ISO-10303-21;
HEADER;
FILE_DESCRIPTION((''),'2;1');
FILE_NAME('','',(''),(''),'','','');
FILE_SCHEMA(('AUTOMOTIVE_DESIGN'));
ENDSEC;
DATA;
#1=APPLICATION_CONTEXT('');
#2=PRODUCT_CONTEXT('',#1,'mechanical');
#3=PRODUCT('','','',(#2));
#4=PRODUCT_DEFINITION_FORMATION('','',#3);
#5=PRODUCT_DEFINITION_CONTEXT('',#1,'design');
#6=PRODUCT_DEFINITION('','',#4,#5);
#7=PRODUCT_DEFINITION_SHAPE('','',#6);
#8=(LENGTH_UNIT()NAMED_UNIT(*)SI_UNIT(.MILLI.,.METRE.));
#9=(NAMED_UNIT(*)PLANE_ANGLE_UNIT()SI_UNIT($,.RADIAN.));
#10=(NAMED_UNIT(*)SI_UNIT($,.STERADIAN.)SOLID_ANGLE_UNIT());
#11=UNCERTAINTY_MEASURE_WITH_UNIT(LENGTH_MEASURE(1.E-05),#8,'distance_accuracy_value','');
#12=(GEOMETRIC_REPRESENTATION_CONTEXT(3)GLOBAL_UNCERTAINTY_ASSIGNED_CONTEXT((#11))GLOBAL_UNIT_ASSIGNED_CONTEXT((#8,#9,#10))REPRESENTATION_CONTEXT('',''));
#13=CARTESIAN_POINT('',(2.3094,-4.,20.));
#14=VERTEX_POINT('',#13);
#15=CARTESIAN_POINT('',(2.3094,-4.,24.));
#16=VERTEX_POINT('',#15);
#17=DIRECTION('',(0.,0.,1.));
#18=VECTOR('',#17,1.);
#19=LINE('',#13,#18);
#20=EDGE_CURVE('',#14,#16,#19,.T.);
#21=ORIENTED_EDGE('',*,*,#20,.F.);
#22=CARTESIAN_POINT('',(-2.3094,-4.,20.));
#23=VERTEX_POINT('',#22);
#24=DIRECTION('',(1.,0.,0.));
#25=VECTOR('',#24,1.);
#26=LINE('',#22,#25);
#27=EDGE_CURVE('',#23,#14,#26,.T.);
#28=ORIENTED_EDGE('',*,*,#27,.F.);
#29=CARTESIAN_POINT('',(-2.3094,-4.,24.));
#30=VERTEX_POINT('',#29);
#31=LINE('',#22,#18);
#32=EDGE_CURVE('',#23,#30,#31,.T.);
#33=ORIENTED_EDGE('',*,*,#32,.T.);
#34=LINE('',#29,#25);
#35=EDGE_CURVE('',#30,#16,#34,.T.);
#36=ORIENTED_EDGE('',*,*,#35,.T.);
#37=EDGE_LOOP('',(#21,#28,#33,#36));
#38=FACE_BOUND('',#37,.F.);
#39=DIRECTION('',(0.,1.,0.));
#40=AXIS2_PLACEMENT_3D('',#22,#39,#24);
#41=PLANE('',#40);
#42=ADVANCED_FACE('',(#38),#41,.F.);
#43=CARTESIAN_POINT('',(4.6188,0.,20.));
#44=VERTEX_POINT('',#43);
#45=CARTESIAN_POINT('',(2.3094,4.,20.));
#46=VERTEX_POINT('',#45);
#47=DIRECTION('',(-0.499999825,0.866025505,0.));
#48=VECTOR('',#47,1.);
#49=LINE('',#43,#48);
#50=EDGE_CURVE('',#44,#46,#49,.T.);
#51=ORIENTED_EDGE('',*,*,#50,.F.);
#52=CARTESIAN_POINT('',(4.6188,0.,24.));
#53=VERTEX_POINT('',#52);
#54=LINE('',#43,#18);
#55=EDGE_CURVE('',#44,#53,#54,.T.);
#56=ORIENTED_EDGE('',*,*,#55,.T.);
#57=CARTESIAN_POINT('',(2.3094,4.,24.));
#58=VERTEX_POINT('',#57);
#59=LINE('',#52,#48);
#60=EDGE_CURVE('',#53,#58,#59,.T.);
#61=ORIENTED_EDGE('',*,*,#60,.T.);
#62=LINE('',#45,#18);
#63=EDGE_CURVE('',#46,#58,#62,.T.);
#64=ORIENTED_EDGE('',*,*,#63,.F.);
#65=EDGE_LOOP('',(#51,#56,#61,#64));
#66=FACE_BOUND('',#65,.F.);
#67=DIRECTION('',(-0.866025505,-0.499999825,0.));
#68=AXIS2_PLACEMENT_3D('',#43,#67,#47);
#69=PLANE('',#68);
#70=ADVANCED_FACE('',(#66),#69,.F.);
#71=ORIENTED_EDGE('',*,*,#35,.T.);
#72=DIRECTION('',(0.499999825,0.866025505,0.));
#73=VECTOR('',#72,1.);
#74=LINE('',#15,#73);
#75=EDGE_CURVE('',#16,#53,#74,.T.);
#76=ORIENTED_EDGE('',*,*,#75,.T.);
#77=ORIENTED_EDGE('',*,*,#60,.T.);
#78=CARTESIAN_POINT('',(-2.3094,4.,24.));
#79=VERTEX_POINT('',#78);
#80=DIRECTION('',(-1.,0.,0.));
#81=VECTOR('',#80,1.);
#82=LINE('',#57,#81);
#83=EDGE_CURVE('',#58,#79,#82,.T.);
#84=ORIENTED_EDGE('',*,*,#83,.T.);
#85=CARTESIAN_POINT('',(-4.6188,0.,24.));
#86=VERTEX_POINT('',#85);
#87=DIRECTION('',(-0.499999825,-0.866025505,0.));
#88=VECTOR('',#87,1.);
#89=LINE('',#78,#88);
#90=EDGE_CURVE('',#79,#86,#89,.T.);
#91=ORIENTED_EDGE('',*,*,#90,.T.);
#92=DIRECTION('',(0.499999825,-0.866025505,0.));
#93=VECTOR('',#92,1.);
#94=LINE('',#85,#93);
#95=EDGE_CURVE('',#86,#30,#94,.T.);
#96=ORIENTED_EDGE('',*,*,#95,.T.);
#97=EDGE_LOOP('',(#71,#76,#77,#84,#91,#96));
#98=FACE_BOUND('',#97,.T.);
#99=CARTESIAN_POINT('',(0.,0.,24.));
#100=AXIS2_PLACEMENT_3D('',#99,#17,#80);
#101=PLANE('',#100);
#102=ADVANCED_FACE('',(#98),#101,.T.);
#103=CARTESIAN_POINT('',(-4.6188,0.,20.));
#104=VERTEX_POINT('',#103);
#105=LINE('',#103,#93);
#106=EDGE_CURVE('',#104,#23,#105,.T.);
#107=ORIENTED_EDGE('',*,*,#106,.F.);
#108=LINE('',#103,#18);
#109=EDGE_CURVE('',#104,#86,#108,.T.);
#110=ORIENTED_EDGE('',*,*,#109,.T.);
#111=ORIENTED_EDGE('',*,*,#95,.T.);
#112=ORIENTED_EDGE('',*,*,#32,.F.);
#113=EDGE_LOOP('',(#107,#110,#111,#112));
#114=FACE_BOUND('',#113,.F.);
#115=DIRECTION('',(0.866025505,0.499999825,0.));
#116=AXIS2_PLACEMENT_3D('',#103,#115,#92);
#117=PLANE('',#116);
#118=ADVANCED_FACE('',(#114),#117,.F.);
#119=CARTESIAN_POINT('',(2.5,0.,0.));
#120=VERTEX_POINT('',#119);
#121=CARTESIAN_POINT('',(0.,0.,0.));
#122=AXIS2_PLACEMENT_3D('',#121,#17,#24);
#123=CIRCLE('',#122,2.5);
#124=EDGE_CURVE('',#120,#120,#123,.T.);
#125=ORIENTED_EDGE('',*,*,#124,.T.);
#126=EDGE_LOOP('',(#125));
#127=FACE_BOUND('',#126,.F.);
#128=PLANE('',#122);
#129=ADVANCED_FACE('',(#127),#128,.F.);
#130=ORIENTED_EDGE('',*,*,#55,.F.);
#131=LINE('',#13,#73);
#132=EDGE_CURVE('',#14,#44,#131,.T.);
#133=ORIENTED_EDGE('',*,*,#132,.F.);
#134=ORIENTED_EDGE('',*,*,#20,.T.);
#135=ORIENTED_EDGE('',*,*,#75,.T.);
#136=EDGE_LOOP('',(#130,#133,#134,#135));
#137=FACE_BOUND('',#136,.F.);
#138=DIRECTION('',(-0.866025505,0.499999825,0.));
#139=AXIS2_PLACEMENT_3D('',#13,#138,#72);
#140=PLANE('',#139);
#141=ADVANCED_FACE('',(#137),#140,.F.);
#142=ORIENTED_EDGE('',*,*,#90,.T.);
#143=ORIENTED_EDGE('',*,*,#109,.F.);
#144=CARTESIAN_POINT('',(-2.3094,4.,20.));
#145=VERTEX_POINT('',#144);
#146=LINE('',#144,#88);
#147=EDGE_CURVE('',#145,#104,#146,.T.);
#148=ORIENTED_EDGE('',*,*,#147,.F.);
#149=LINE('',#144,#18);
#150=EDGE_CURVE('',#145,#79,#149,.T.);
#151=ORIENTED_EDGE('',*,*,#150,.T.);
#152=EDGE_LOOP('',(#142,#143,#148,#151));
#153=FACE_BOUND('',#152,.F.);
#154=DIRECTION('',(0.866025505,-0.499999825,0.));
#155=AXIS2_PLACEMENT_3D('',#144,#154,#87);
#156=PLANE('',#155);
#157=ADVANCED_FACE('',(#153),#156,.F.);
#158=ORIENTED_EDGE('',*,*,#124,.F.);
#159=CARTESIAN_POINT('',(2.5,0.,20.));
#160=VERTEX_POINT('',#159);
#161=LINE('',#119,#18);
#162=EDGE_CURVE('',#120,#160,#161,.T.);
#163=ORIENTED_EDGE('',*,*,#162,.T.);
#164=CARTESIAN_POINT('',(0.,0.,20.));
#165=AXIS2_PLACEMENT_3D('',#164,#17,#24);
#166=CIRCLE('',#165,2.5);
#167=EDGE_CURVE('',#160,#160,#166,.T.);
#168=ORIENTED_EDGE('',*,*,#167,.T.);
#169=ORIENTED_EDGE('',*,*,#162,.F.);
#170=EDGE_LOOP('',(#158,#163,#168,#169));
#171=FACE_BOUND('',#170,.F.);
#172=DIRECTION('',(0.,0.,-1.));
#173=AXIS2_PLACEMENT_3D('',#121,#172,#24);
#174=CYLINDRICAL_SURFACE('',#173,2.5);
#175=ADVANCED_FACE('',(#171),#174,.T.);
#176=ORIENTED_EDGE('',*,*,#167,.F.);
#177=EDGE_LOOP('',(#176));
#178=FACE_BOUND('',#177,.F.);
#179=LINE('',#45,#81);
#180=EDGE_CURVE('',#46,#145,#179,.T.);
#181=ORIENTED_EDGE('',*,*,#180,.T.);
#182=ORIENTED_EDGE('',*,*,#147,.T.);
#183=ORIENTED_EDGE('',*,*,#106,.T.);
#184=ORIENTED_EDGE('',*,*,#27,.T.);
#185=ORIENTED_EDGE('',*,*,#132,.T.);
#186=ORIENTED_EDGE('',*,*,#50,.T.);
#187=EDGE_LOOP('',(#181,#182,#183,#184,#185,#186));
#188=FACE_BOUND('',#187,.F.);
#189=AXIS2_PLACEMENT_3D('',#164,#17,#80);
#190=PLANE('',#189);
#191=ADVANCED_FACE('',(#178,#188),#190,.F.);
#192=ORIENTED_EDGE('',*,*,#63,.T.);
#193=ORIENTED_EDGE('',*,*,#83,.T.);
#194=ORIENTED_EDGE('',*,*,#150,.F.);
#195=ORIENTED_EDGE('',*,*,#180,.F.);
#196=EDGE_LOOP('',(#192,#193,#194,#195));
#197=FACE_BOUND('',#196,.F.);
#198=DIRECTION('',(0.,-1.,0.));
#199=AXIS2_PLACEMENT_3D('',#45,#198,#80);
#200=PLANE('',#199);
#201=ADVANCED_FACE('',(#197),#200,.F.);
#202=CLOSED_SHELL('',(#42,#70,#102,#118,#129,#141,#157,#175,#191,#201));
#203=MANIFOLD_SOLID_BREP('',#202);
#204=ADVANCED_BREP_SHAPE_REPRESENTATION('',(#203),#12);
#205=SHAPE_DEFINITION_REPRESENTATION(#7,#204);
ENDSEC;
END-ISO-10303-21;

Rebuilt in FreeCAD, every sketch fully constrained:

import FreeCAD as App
import Part
import Sketcher
from FreeCAD import Vector
Q = App.Units.Quantity

doc = App.newDocument("Part")
params = doc.addObject("Spreadsheet::Sheet", "Params")
for row, (alias, value) in enumerate([
    ("sketch1_diameter", "5 mm"),
    ("pad1_length", "20 mm"),
    ("pad2_length", "4 mm"),
], start=1):
    params.set(f"A{row}", alias)
    params.set(f"B{row}", "=" + value)
    params.setAlias(f"B{row}", alias)

body = doc.addObject("PartDesign::Body", "Body")

# Sketch on XY plane
sketch1 = body.newObject("Sketcher::SketchObject", "Sketch")
sketch1.AttachmentSupport = (doc.getObject("XY_Plane"), [""])
sketch1.MapMode = "FlatFace"
sketch1.addGeometry(Part.Circle(Vector(0, 0, 0), Vector(0, 0, 1), 2.5), False)
sketch1.addConstraint(Sketcher.Constraint("Coincident", 0, 3, -1, 1))
sketch1.addConstraint(Sketcher.Constraint("Diameter", 0, Q("5 mm")))
sketch1.setExpression("Constraints[1]", "Params.sketch1_diameter")
pad1 = body.newObject("PartDesign::Pad", "Pad")
pad1.Profile = sketch1
pad1.setExpression("Length", "Params.pad1_length")

# Sketch on XY plane
sketch2 = body.newObject("Sketcher::SketchObject", "Sketch001")
sketch2.AttachmentSupport = (doc.getObject("XY_Plane"), [""])
sketch2.MapMode = "FlatFace"
sketch2.AttachmentOffset = App.Placement(Vector(0, 0, 20), App.Rotation())
sketch2.addGeometry(Part.LineSegment(Vector(-2.3, -4, 0), Vector(2.3, -4, 0)), False)
sketch2.addGeometry(Part.LineSegment(Vector(2.3, -4, 0), Vector(4.6, 0, 0)), False)
sketch2.addGeometry(Part.LineSegment(Vector(4.6, 0, 0), Vector(2.3, 4, 0)), False)
sketch2.addGeometry(Part.LineSegment(Vector(2.3, 4, 0), Vector(-2.3, 4, 0)), False)
sketch2.addGeometry(Part.LineSegment(Vector(-2.3, 4, 0), Vector(-4.6, 0, 0)), False)
sketch2.addGeometry(Part.LineSegment(Vector(-4.6, 0, 0), Vector(-2.3, -4, 0)), False)
sketch2.addConstraint(Sketcher.Constraint("Coincident", 0, 2, 1, 1))
sketch2.addConstraint(Sketcher.Constraint("Coincident", 1, 2, 2, 1))
sketch2.addConstraint(Sketcher.Constraint("Coincident", 2, 2, 3, 1))
sketch2.addConstraint(Sketcher.Constraint("Coincident", 3, 2, 4, 1))
sketch2.addConstraint(Sketcher.Constraint("Coincident", 4, 2, 5, 1))
sketch2.addConstraint(Sketcher.Constraint("Coincident", 5, 2, 0, 1))
sketch2.addConstraint(Sketcher.Constraint("Horizontal", 0))
sketch2.addConstraint(Sketcher.Constraint("Horizontal", 3))
sketch2.addConstraint(Sketcher.Constraint("Symmetric", 0, 2, 3, 2, -1, 1))
sketch2.addConstraint(Sketcher.Constraint("Symmetric", 1, 2, 4, 2, -1, 1))
sketch2.addConstraint(Sketcher.Constraint("PointOnObject", 1, 2, -1))
sketch2.addConstraint(Sketcher.Constraint("Parallel", 2, 5))
sketch2.addConstraint(Sketcher.Constraint("Vertical", 0, 2, 2, 2))
sketch2.addConstraint(Sketcher.Constraint("DistanceY", 0, 2, -1, 1, Q("4 mm")))
sketch2.addConstraint(Sketcher.Constraint("Angle", 1, Q("60 deg")))
sketch2.addConstraint(Sketcher.Constraint("DistanceX", 0, 1, 0, 2, Q("4.6188 mm")))
pad2 = body.newObject("PartDesign::Pad", "Pad001")
pad2.Profile = sketch2
pad2.setExpression("Length", "Params.pad2_length")

doc.recompute()
